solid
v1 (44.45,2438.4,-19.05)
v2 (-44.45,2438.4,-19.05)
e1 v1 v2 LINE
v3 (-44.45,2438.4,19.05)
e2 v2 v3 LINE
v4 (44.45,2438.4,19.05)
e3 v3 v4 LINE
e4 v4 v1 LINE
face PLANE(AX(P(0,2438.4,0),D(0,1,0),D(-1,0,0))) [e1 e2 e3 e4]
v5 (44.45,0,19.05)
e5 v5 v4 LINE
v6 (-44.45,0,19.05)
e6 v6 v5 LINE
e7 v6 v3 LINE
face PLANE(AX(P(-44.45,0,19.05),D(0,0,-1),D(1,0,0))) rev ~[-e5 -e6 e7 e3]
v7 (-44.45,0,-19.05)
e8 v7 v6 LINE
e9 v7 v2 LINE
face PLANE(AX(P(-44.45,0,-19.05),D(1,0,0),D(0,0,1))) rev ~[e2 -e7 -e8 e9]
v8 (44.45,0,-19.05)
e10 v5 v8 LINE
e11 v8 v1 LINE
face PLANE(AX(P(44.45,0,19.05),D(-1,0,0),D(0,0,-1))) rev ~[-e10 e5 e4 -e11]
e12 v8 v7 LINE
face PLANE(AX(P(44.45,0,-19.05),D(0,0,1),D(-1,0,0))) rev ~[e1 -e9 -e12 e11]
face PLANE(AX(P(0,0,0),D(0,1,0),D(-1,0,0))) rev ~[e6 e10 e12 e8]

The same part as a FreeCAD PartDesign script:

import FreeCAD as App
import Part
import Sketcher
from FreeCAD import Vector
Q = App.Units.Quantity


def add_polygon(sketch, points):
    """Adds a closed chain of lines whose ends are joined by coincident constraints."""
    first, n = sketch.GeometryCount, len(points)
    for a, b in zip(points, points[1:] + points[:1]):
        sketch.addGeometry(Part.LineSegment(App.Vector(*a, 0), App.Vector(*b, 0)), False)
    for i in range(n):
        sketch.addConstraint(Sketcher.Constraint("Coincident", first + i, 2, first + (i + 1) % n, 1))

doc = App.newDocument("Part")
params = doc.addObject("Spreadsheet::Sheet", "Params")
for row, (alias, value) in enumerate([
    ("sketch1_width", "3.5 in"),
    ("sketch1_height", "1.5 in"),
    ("pad1_length", "96 in"),
], start=1):
    params.set(f"A{row}", alias)
    params.set(f"B{row}", "=" + value)
    params.setAlias(f"B{row}", alias)

body = doc.addObject("PartDesign::Body", "Body")

# Sketch on XZ plane
sketch1 = body.newObject("Sketcher::SketchObject", "Sketch")
sketch1.AttachmentSupport = (doc.getObject("XZ_Plane"), [""])
sketch1.MapMode = "FlatFace"
add_polygon(sketch1, [(44.45, 19.05), (44.45, -19.05), (-44.45, -19.05), (-44.45, 19.05)])  # lines 0-3
sketch1.addConstraint([
    Sketcher.Constraint("Vertical", 0),
    Sketcher.Constraint("Horizontal", 1),
    Sketcher.Constraint("Vertical", 2),
    Sketcher.Constraint("Horizontal", 3),
    Sketcher.Constraint("Symmetric", 0, 2, 2, 2, -1, 1),
    Sketcher.Constraint("DistanceX", 1, 2, 1, 1, Q("3.5 in")),
    Sketcher.Constraint("DistanceY", 0, 2, 0, 1, Q("1.5 in")),
])
sketch1.setExpression("Constraints[9]", "Params.sketch1_width")
sketch1.setExpression("Constraints[10]", "Params.sketch1_height")
pad1 = body.newObject("PartDesign::Pad", "Pad")
pad1.Profile = sketch1
pad1.setExpression("Length", "Params.pad1_length")
pad1.Reversed = True

doc.recompute()
